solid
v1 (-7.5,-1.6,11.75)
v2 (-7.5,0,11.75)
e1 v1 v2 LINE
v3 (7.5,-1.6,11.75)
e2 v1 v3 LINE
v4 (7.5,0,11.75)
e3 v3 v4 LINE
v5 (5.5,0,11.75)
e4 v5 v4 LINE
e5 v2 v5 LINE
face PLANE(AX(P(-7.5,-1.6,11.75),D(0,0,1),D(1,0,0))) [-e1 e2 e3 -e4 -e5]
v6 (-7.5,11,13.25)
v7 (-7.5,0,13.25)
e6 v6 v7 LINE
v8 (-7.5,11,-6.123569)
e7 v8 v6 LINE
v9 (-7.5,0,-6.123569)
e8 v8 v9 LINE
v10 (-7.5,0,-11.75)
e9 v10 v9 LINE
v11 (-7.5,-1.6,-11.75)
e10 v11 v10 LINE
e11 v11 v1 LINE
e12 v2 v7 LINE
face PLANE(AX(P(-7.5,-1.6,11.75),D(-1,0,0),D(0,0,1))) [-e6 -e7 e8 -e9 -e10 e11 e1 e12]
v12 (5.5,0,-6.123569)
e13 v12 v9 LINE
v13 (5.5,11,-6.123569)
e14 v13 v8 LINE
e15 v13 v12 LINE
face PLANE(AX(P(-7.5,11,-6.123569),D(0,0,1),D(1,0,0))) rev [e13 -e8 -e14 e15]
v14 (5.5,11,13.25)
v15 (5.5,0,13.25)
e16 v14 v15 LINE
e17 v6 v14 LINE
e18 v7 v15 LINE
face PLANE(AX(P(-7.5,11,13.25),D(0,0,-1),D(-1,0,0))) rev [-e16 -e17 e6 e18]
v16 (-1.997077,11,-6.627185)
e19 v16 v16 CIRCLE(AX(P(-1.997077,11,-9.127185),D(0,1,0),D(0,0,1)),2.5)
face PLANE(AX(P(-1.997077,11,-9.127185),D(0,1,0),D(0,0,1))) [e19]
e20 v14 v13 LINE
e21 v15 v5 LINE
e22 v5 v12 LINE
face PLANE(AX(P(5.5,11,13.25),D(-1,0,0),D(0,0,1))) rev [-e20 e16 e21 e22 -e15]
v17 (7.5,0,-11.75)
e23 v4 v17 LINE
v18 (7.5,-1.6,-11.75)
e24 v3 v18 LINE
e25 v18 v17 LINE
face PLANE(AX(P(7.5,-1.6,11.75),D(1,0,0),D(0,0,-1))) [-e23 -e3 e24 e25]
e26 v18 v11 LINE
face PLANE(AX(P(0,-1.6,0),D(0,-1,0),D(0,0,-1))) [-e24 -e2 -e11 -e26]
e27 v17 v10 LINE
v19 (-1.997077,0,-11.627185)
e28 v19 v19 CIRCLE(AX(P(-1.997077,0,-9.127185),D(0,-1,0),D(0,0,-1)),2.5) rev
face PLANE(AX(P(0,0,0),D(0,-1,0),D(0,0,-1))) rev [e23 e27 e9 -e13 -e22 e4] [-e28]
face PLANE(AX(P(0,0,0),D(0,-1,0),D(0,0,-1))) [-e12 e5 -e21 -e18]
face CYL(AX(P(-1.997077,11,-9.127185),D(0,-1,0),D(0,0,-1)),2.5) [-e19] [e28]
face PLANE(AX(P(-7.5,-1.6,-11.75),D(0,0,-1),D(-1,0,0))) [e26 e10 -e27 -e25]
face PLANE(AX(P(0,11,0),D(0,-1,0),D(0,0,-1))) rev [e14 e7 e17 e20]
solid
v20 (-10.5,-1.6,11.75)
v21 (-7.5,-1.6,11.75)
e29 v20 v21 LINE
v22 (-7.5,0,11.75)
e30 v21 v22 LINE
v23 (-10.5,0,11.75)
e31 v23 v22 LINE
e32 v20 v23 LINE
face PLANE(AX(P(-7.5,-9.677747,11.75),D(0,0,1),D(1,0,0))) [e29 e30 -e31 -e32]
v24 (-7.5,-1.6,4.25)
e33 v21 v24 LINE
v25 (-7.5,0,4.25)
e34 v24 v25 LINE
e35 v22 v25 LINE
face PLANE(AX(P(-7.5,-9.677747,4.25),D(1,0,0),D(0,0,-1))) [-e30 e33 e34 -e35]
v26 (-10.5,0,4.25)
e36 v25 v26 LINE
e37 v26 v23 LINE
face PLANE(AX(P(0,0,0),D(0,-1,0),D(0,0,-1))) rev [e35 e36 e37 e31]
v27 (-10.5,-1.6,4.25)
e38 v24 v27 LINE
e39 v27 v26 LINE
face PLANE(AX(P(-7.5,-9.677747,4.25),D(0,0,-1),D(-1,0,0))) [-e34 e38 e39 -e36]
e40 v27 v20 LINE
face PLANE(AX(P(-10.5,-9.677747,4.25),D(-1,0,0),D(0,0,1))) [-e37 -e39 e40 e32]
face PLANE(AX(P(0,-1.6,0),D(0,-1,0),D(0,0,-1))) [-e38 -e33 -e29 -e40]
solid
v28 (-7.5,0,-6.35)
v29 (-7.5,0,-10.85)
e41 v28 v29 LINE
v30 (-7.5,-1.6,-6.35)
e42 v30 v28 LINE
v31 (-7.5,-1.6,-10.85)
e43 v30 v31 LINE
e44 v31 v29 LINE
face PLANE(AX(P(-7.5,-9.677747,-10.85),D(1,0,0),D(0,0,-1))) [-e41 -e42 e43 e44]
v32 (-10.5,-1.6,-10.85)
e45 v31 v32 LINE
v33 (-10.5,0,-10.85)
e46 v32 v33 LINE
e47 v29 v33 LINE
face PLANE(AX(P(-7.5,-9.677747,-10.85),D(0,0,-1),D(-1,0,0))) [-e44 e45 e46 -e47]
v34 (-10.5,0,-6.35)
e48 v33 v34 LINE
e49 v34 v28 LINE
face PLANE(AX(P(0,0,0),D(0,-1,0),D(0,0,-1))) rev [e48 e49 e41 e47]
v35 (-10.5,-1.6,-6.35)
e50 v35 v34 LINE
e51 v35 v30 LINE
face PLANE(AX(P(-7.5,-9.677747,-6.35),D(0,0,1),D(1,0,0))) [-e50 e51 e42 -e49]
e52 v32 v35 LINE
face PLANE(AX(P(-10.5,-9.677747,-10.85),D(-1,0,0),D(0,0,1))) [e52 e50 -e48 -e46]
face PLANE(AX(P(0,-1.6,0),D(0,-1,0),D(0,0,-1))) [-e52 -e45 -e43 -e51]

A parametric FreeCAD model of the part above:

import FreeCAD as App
import Part
import Sketcher
from FreeCAD import Vector
Q = App.Units.Quantity

doc = App.newDocument("Part")
body = doc.addObject("PartDesign::Body", "Body")

# Sketch on XZ plane
sketch1 = body.newObject("Sketcher::SketchObject", "Sketch")
sketch1.AttachmentSupport = (doc.getObject("XZ_Plane"), [""])
sketch1.MapMode = "FlatFace"
sketch1.addGeometry(Part.LineSegment(Vector(-8, -12, 0), Vector(-8, 12, 0)), False)
sketch1.addGeometry(Part.LineSegment(Vector(-8, 12, 0), Vector(8, 12, 0)), False)
sketch1.addGeometry(Part.LineSegment(Vector(8, 12, 0), Vector(8, -12, 0)), False)
sketch1.addGeometry(Part.LineSegment(Vector(8, -12, 0), Vector(-8, -12, 0)), False)
sketch1.addConstraint(Sketcher.Constraint("Coincident", 0, 2, 1, 1))
sketch1.addConstraint(Sketcher.Constraint("Coincident", 1, 2, 2, 1))
sketch1.addConstraint(Sketcher.Constraint("Coincident", 2, 2, 3, 1))
sketch1.addConstraint(Sketcher.Constraint("Coincident", 3, 2, 0, 1))
sketch1.addConstraint(Sketcher.Constraint("Vertical", 0))
sketch1.addConstraint(Sketcher.Constraint("Horizontal", 1))
sketch1.addConstraint(Sketcher.Constraint("Vertical", 2))
sketch1.addConstraint(Sketcher.Constraint("Horizontal", 3))
sketch1.addConstraint(Sketcher.Constraint("Symmetric", 0, 2, 2, 2, -1, 1))
sketch1.addConstraint(Sketcher.Constraint("DistanceX", 1, 1, 1, 2, Q("15 mm")))
sketch1.addConstraint(Sketcher.Constraint("DistanceY", 0, 1, 0, 2, Q("23.5 mm")))
pad1 = body.newObject("PartDesign::Pad", "Pad")
pad1.Profile = sketch1
pad1.Length = 1.6

# Sketch on XZ plane
sketch2 = body.newObject("Sketcher::SketchObject", "Sketch001")
sketch2.AttachmentSupport = (doc.getObject("XZ_Plane"), [""])
sketch2.MapMode = "FlatFace"
sketch2.addGeometry(Part.Circle(Vector(-2, -9.1, 0), Vector(0, 0, 1), 2.5), False)
sketch2.addGeometry(Part.LineSegment(Vector(-7.5, -6.1, 0), Vector(-7.5, 13.2, 0)), False)
sketch2.addGeometry(Part.LineSegment(Vector(-7.5, 13.2, 0), Vector(5.5, 13.2, 0)), False)
sketch2.addGeometry(Part.LineSegment(Vector(5.5, 13.2, 0), Vector(5.5, -6.1, 0)), False)
sketch2.addGeometry(Part.LineSegment(Vector(5.5, -6.1, 0), Vector(-7.5, -6.1, 0)), False)
sketch2.addConstraint(Sketcher.Constraint("Coincident", 1, 2, 2, 1))
sketch2.addConstraint(Sketcher.Constraint("Coincident", 2, 2, 3, 1))
sketch2.addConstraint(Sketcher.Constraint("Coincident", 3, 2, 4, 1))
sketch2.addConstraint(Sketcher.Constraint("Coincident", 4, 2, 1, 1))
sketch2.addConstraint(Sketcher.Constraint("Vertical", 1))
sketch2.addConstraint(Sketcher.Constraint("Horizontal", 2))
sketch2.addConstraint(Sketcher.Constraint("Vertical", 3))
sketch2.addConstraint(Sketcher.Constraint("Horizontal", 4))
sketch2.addConstraint(Sketcher.Constraint("Diameter", 0, Q("5 mm")))
sketch2.addConstraint(Sketcher.Constraint("DistanceX", 2, 1, 2, 2, Q("13 mm")))
sketch2.addConstraint(Sketcher.Constraint("DistanceX", 1, 2, -1, 1, Q("7.5 mm")))
sketch2.addConstraint(Sketcher.Constraint("DistanceY", -1, 1, 1, 2, Q("13.25 mm")))
sketch2.addConstraint(Sketcher.Constraint("DistanceY", 1, 1, 1, 2, Q("19.373569 mm")))
sketch2.addConstraint(Sketcher.Constraint("DistanceX", 0, 3, -1, 1, Q("1.997077 mm")))
sketch2.addConstraint(Sketcher.Constraint("DistanceY", 0, 3, -1, 1, Q("9.127185 mm")))
pad2 = body.newObject("PartDesign::Pad", "Pad001")
pad2.Profile = sketch2
pad2.Length = 11
pad2.Reversed = True
body2 = doc.addObject("PartDesign::Body", "Body001")

# Sketch on XZ plane
sketch3 = body2.newObject("Sketcher::SketchObject", "Sketch002")
sketch3.AttachmentSupport = (doc.getObject("XZ_Plane001"), [""])
sketch3.MapMode = "FlatFace"
sketch3.addGeometry(Part.LineSegment(Vector(-10.5, -10.8, 0), Vector(-10.5, -6.3, 0)), False)
sketch3.addGeometry(Part.LineSegment(Vector(-10.5, -6.3, 0), Vector(-7.5, -6.3, 0)), False)
sketch3.addGeometry(Part.LineSegment(Vector(-7.5, -6.3, 0), Vector(-7.5, -10.8, 0)), False)
sketch3.addGeometry(Part.LineSegment(Vector(-7.5, -10.8, 0), Vector(-10.5, -10.8, 0)), False)
sketch3.addConstraint(Sketcher.Constraint("Coincident", 0, 2, 1, 1))
sketch3.addConstraint(Sketcher.Constraint("Coincident", 1, 2, 2, 1))
sketch3.addConstraint(Sketcher.Constraint("Coincident", 2, 2, 3, 1))
sketch3.addConstraint(Sketcher.Constraint("Coincident", 3, 2, 0, 1))
sketch3.addConstraint(Sketcher.Constraint("Vertical", 0))
sketch3.addConstraint(Sketcher.Constraint("Horizontal", 1))
sketch3.addConstraint(Sketcher.Constraint("Vertical", 2))
sketch3.addConstraint(Sketcher.Constraint("Horizontal", 3))
sketch3.addConstraint(Sketcher.Constraint("DistanceX", 1, 1, 1, 2, Q("3 mm")))
sketch3.addConstraint(Sketcher.Constraint("DistanceY", 0, 1, 0, 2, Q("4.5 mm")))
sketch3.addConstraint(Sketcher.Constraint("DistanceX", 0, 2, -1, 1, Q("10.5 mm")))
sketch3.addConstraint(Sketcher.Constraint("DistanceY", 0, 2, -1, 1, Q("6.35 mm")))
pad3 = body2.newObject("PartDesign::Pad", "Pad002")
pad3.Profile = sketch3
pad3.Length = 1.6
body3 = doc.addObject("PartDesign::Body", "Body002")

# Sketch on XZ plane
sketch4 = body3.newObject("Sketcher::SketchObject", "Sketch003")
sketch4.AttachmentSupport = (doc.getObject("XZ_Plane002"), [""])
sketch4.MapMode = "FlatFace"
sketch4.addGeometry(Part.LineSegment(Vector(-10.5, 4.2, 0), Vector(-10.5, 11.8, 0)), False)
sketch4.addGeometry(Part.LineSegment(Vector(-10.5, 11.8, 0), Vector(-7.5, 11.8, 0)), False)
sketch4.addGeometry(Part.LineSegment(Vector(-7.5, 11.8, 0), Vector(-7.5, 4.2, 0)), False)
sketch4.addGeometry(Part.LineSegment(Vector(-7.5, 4.2, 0), Vector(-10.5, 4.2, 0)), False)
sketch4.addConstraint(Sketcher.Constraint("Coincident", 0, 2, 1, 1))
sketch4.addConstraint(Sketcher.Constraint("Coincident", 1, 2, 2, 1))
sketch4.addConstraint(Sketcher.Constraint("Coincident", 2, 2, 3, 1))
sketch4.addConstraint(Sketcher.Constraint("Coincident", 3, 2, 0, 1))
sketch4.addConstraint(Sketcher.Constraint("Vertical", 0))
sketch4.addConstraint(Sketcher.Constraint("Horizontal", 1))
sketch4.addConstraint(Sketcher.Constraint("Vertical", 2))
sketch4.addConstraint(Sketcher.Constraint("Horizontal", 3))
sketch4.addConstraint(Sketcher.Constraint("DistanceX", 1, 1, 1, 2, Q("3 mm")))
sketch4.addConstraint(Sketcher.Constraint("DistanceY", 0, 1, 0, 2, Q("7.5 mm")))
sketch4.addConstraint(Sketcher.Constraint("DistanceX", 0, 2, -1, 1, Q("10.5 mm")))
sketch4.addConstraint(Sketcher.Constraint("DistanceY", -1, 1, 0, 2, Q("11.75 mm")))
pad4 = body3.newObject("PartDesign::Pad", "Pad003")
pad4.Profile = sketch4
pad4.Length = 1.6

doc.recompute()
